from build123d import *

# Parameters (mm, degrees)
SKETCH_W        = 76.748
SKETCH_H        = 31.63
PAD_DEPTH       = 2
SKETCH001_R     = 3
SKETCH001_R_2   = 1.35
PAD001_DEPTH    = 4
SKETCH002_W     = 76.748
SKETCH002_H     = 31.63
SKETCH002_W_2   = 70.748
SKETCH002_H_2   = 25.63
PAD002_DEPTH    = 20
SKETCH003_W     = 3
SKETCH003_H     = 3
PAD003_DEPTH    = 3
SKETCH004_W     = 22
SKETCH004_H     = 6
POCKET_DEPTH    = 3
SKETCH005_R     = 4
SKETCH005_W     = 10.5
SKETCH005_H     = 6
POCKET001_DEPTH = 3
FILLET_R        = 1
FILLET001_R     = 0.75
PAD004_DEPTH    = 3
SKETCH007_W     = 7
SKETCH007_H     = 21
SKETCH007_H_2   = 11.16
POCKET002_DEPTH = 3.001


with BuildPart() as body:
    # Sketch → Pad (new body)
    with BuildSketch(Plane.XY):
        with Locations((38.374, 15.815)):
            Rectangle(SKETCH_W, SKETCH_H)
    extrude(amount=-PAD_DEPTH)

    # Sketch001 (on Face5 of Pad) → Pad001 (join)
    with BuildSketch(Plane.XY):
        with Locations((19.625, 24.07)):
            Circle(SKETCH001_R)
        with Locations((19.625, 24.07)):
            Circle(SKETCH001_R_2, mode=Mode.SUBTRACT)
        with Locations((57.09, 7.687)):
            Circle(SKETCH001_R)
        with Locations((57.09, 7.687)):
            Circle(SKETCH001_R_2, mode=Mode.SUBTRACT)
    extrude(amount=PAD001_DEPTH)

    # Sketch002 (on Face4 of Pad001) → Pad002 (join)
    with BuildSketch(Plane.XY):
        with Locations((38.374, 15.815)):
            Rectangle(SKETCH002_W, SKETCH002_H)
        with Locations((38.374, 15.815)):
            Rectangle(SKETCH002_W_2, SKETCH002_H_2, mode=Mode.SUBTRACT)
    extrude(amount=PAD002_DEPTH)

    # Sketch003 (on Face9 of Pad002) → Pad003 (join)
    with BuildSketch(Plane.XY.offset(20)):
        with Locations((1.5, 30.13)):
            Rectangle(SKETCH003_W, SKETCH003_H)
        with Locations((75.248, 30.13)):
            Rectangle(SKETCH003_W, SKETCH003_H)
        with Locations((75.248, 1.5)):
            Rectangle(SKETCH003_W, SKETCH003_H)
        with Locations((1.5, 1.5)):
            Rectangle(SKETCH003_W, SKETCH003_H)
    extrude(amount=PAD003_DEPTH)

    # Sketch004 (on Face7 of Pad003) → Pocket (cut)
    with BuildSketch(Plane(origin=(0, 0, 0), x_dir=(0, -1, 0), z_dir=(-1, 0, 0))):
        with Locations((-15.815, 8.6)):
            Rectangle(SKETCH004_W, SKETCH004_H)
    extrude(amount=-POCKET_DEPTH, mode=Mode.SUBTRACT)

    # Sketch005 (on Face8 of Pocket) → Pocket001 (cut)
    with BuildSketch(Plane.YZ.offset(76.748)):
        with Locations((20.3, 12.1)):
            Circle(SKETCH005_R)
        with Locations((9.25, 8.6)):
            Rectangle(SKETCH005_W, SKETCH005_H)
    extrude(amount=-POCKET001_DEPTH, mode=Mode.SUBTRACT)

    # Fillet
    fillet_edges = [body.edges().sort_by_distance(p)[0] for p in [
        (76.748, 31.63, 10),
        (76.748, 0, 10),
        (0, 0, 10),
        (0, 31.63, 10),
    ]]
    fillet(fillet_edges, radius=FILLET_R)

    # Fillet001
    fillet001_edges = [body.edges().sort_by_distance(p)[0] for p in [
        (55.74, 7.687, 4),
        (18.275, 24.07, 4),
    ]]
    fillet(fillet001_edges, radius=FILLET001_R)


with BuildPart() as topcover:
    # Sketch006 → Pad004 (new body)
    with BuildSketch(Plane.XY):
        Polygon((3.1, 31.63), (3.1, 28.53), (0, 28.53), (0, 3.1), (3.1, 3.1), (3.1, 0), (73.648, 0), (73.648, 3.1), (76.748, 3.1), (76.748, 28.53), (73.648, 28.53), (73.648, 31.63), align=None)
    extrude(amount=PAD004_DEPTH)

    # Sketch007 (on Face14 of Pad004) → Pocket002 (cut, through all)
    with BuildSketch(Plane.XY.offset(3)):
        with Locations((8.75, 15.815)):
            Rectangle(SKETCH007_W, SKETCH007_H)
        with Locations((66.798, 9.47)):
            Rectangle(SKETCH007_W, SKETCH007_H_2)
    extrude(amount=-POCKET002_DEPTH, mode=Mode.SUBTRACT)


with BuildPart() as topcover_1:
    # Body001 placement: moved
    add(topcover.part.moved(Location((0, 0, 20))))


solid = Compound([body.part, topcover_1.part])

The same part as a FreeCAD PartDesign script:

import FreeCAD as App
import Part
import Sketcher

V = App.Vector
Q = App.Units.Quantity


def edges_at(feature, points):
    """Names of the edges that pass closest to the given points."""
    edges = feature.Shape.Edges
    near = lambda p: min(range(len(edges)), key=lambda i: edges[i].distToShape(Part.Vertex(*p))[0])
    return sorted({f"Edge{near(p) + 1}" for p in points})

doc = App.newDocument("Part")
body = doc.addObject("PartDesign::Body", "Body")

sketch1 = doc.addObject("Sketcher::SketchObject", "Sketch")
body.addObject(sketch1)
sketch1.AttachmentSupport = (doc.XY_Plane, [""])
sketch1.MapMode = "FlatFace"
sketch1.addGeometry(Part.LineSegment(V(0, 32, 0), V(0, 0, 0)), False)
sketch1.addGeometry(Part.LineSegment(V(0, 0, 0), V(77, 0, 0)), False)
sketch1.addGeometry(Part.LineSegment(V(77, 0, 0), V(77, 32, 0)), False)
sketch1.addGeometry(Part.LineSegment(V(77, 32, 0), V(0, 32, 0)), False)
sketch1.addConstraint(Sketcher.Constraint("Coincident", 0, 2, 1, 1))
sketch1.addConstraint(Sketcher.Constraint("Coincident", 1, 2, 2, 1))
sketch1.addConstraint(Sketcher.Constraint("Coincident", 2, 2, 3, 1))
sketch1.addConstraint(Sketcher.Constraint("Coincident", 3, 2, 0, 1))
sketch1.addConstraint(Sketcher.Constraint("Vertical", 0))
sketch1.addConstraint(Sketcher.Constraint("Horizontal", 1))
sketch1.addConstraint(Sketcher.Constraint("Vertical", 2))
sketch1.addConstraint(Sketcher.Constraint("Horizontal", 3))
sketch1.addConstraint(Sketcher.Constraint("Coincident", 0, 2, -1, 1))
sketch1.addConstraint(Sketcher.Constraint("DistanceY", 0, 2, 0, 1, Q("31.63 mm")))
sketch1.addConstraint(Sketcher.Constraint("DistanceX", 1, 1, 1, 2, Q("76.748 mm")))
pad1 = doc.addObject("PartDesign::Pad", "Pad")
body.addObject(pad1)
pad1.Profile = sketch1
pad1.Length = 2
pad1.Reversed = True

sketch2 = doc.addObject("Sketcher::SketchObject", "Sketch001")
body.addObject(sketch2)
sketch2.AttachmentSupport = (doc.XY_Plane, [""])
sketch2.MapMode = "FlatFace"
sketch2.addGeometry(Part.Circle(V(19.6, 24.1, 0), V(0, 0, 1), 3), False)
sketch2.addGeometry(Part.Circle(V(19.6, 24.1, 0), V(0, 0, 1), 1.4), False)
sketch2.addGeometry(Part.Circle(V(57.1, 7.7, 0), V(0, 0, 1), 3), False)
sketch2.addGeometry(Part.Circle(V(57.1, 7.7, 0), V(0, 0, 1), 1.4), False)
sketch2.addConstraint(Sketcher.Constraint("Coincident", 1, 3, 0, 3))
sketch2.addConstraint(Sketcher.Constraint("Coincident", 3, 3, 2, 3))
sketch2.addConstraint(Sketcher.Constraint("Equal", 0, 2))
sketch2.addConstraint(Sketcher.Constraint("Equal", 1, 3))
sketch2.addConstraint(Sketcher.Constraint("Diameter", 0, Q("6 mm")))
sketch2.addConstraint(Sketcher.Constraint("Diameter", 1, Q("2.7 mm")))
sketch2.addConstraint(Sketcher.Constraint("DistanceY", -1, 1, 0, 3, Q("24.07 mm")))
sketch2.addConstraint(Sketcher.Constraint("DistanceX", -1, 1, 2, 3, Q("57.09 mm")))
sketch2.addConstraint(Sketcher.Constraint("DistanceX", -1, 1, 0, 3, Q("19.625 mm")))
sketch2.addConstraint(Sketcher.Constraint("DistanceY", -1, 1, 2, 3, Q("7.687 mm")))
pad2 = doc.addObject("PartDesign::Pad", "Pad001")
body.addObject(pad2)
pad2.Profile = sketch2
pad2.Length = 4

sketch3 = doc.addObject("Sketcher::SketchObject", "Sketch002")
body.addObject(sketch3)
sketch3.AttachmentSupport = (doc.XY_Plane, [""])
sketch3.MapMode = "FlatFace"
sketch3.addGeometry(Part.LineSegment(V(0, 32, 0), V(0, 0, 0)), False)
sketch3.addGeometry(Part.LineSegment(V(0, 0, 0), V(77, 0, 0)), False)
sketch3.addGeometry(Part.LineSegment(V(77, 0, 0), V(77, 32, 0)), False)
sketch3.addGeometry(Part.LineSegment(V(77, 32, 0), V(0, 32, 0)), False)
sketch3.addGeometry(Part.LineSegment(V(74, 3, 0), V(3, 3, 0)), False)
sketch3.addGeometry(Part.LineSegment(V(3, 3, 0), V(3, 29, 0)), False)
sketch3.addGeometry(Part.LineSegment(V(3, 29, 0), V(74, 29, 0)), False)
sketch3.addGeometry(Part.LineSegment(V(74, 29, 0), V(74, 3, 0)), False)
sketch3.addConstraint(Sketcher.Constraint("Coincident", 0, 2, 1, 1))
sketch3.addConstraint(Sketcher.Constraint("Coincident", 1, 2, 2, 1))
sketch3.addConstraint(Sketcher.Constraint("Coincident", 2, 2, 3, 1))
sketch3.addConstraint(Sketcher.Constraint("Coincident", 3, 2, 0, 1))
sketch3.addConstraint(Sketcher.Constraint("Coincident", 4, 2, 5, 1))
sketch3.addConstraint(Sketcher.Constraint("Coincident", 5, 2, 6, 1))
sketch3.addConstraint(Sketcher.Constraint("Coincident", 6, 2, 7, 1))
sketch3.addConstraint(Sketcher.Constraint("Coincident", 7, 2, 4, 1))
sketch3.addConstraint(Sketcher.Constraint("Vertical", 0))
sketch3.addConstraint(Sketcher.Constraint("Horizontal", 1))
sketch3.addConstraint(Sketcher.Constraint("Vertical", 2))
sketch3.addConstraint(Sketcher.Constraint("Horizontal", 3))
sketch3.addConstraint(Sketcher.Constraint("Horizontal", 4))
sketch3.addConstraint(Sketcher.Constraint("Vertical", 5))
sketch3.addConstraint(Sketcher.Constraint("Horizontal", 6))
sketch3.addConstraint(Sketcher.Constraint("Vertical", 7))
sketch3.addConstraint(Sketcher.Constraint("Coincident", 0, 2, -1, 1))
sketch3.addConstraint(Sketcher.Constraint("DistanceX", -1, 1, 4, 2, Q("3 mm")))
sketch3.addConstraint(Sketcher.Constraint("DistanceY", -1, 1, 4, 2, Q("3 mm")))
sketch3.addConstraint(Sketcher.Constraint("DistanceY", 5, 2, 3, 2, Q("3 mm")))
sketch3.addConstraint(Sketcher.Constraint("DistanceX", 6, 2, 2, 2, Q("3 mm")))
sketch3.addConstraint(Sketcher.Constraint("DistanceY", 0, 2, 0, 1, Q("31.63 mm")))
sketch3.addConstraint(Sketcher.Constraint("DistanceX", 1, 1, 1, 2, Q("76.748 mm")))
pad3 = doc.addObject("PartDesign::Pad", "Pad002")
body.addObject(pad3)
pad3.Profile = sketch3
pad3.Length = 20

sketch4 = doc.addObject("Sketcher::SketchObject", "Sketch003")
body.addObject(sketch4)
sketch4.AttachmentSupport = (doc.XY_Plane, [""])
sketch4.MapMode = "FlatFace"
sketch4.AttachmentOffset = App.Placement(V(0, 0, 20), App.Rotation())
sketch4.addGeometry(Part.LineSegment(V(0, 31.6, 0), V(0, 28.6, 0)), False)
sketch4.addGeometry(Part.LineSegment(V(0, 28.6, 0), V(3, 28.6, 0)), False)
sketch4.addGeometry(Part.LineSegment(V(3, 28.6, 0), V(3, 31.6, 0)), False)
sketch4.addGeometry(Part.LineSegment(V(3, 31.6, 0), V(0, 31.6, 0)), False)
sketch4.addGeometry(Part.LineSegment(V(73.7, 31.6, 0), V(73.7, 28.6, 0)), False)
sketch4.addGeometry(Part.LineSegment(V(73.7, 28.6, 0), V(76.7, 28.6, 0)), False)
sketch4.addGeometry(Part.LineSegment(V(76.7, 28.6, 0), V(76.7, 31.6, 0)), False)
sketch4.addGeometry(Part.LineSegment(V(76.7, 31.6, 0), V(73.7, 31.6, 0)), False)
sketch4.addGeometry(Part.LineSegment(V(73.7, 3, 0), V(73.7, 0, 0)), False)
sketch4.addGeometry(Part.LineSegment(V(73.7, 0, 0), V(76.7, 0, 0)), False)
sketch4.addGeometry(Part.LineSegment(V(76.7, 0, 0), V(76.7, 3, 0)), False)
sketch4.addGeometry(Part.LineSegment(V(76.7, 3, 0), V(73.7, 3, 0)), False)
sketch4.addGeometry(Part.LineSegment(V(0, 3, 0), V(0, 0, 0)), False)
sketch4.addGeometry(Part.LineSegment(V(0, 0, 0), V(3, 0, 0)), False)
sketch4.addGeometry(Part.LineSegment(V(3, 0, 0), V(3, 3, 0)), False)
sketch4.addGeometry(Part.LineSegment(V(3, 3, 0), V(0, 3, 0)), False)
sketch4.addConstraint(Sketcher.Constraint("Coincident", 0, 2, 1, 1))
sketch4.addConstraint(Sketcher.Constraint("Coincident", 1, 2, 2, 1))
sketch4.addConstraint(Sketcher.Constraint("Coincident", 2, 2, 3, 1))
sketch4.addConstraint(Sketcher.Constraint("Coincident", 3, 2, 0, 1))
sketch4.addConstraint(Sketcher.Constraint("Coincident", 4, 2, 5, 1))
sketch4.addConstraint(Sketcher.Constraint("Coincident", 5, 2, 6, 1))
sketch4.addConstraint(Sketcher.Constraint("Coincident", 6, 2, 7, 1))
sketch4.addConstraint(Sketcher.Constraint("Coincident", 7, 2, 4, 1))
sketch4.addConstraint(Sketcher.Constraint("Coincident", 8, 2, 9, 1))
sketch4.addConstraint(Sketcher.Constraint("Coincident", 9, 2, 10, 1))
sketch4.addConstraint(Sketcher.Constraint("Coincident", 10, 2, 11, 1))
sketch4.addConstraint(Sketcher.Constraint("Coincident", 11, 2, 8, 1))
sketch4.addConstraint(Sketcher.Constraint("Coincident", 12, 2, 13, 1))
sketch4.addConstraint(Sketcher.Constraint("Coincident", 13, 2, 14, 1))
sketch4.addConstraint(Sketcher.Constraint("Coincident", 14, 2, 15, 1))
sketch4.addConstraint(Sketcher.Constraint("Coincident", 15, 2, 12, 1))
sketch4.addConstraint(Sketcher.Constraint("Vertical", 0))
sketch4.addConstraint(Sketcher.Constraint("Horizontal", 1))
sketch4.addConstraint(Sketcher.Constraint("Vertical", 2))
sketch4.addConstraint(Sketcher.Constraint("Horizontal", 3))
sketch4.addConstraint(Sketcher.Constraint("Vertical", 4))
sketch4.addConstraint(Sketcher.Constraint("Horizontal", 5))
sketch4.addConstraint(Sketcher.Constraint("Vertical", 6))
sketch4.addConstraint(Sketcher.Constraint("Horizontal", 7))
sketch4.addConstraint(Sketcher.Constraint("Vertical", 8))
sketch4.addConstraint(Sketcher.Constraint("Horizontal", 9))
sketch4.addConstraint(Sketcher.Constraint("Vertical", 10))
sketch4.addConstraint(Sketcher.Constraint("Horizontal", 11))
sketch4.addConstraint(Sketcher.Constraint("Vertical", 12))
sketch4.addConstraint(Sketcher.Constraint("Horizontal", 13))
sketch4.addConstraint(Sketcher.Constraint("Vertical", 14))
sketch4.addConstraint(Sketcher.Constraint("Horizontal", 15))
sketch4.addConstraint(Sketcher.Constraint("Coincident", 12, 2, -1, 1))
sketch4.addConstraint(Sketcher.Constraint("PointOnObject", 0, 2, -2))
sketch4.addConstraint(Sketcher.Constraint("PointOnObject", 8, 2, -1))
sketch4.addConstraint(Sketcher.Constraint("Horizontal", 1, 2, 4, 2))
sketch4.addConstraint(Sketcher.Constraint("Horizontal", 3, 2, 6, 2))
sketch4.addConstraint(Sketcher.Constraint("Horizontal", 11, 2, 14, 2))
sketch4.addConstraint(Sketcher.Constraint("Vertical", 7, 2, 8, 2))
sketch4.addConstraint(Sketcher.Constraint("Vertical", 6, 2, 9, 2))
sketch4.addConstraint(Sketcher.Constraint("Vertical", 2, 2, 13, 2))
sketch4.addConstraint(Sketcher.Constraint("Equal", 3, 5))
sketch4.addConstraint(Sketcher.Constraint("Equal", 15, 0))
sketch4.addConstraint(Sketcher.Constraint("Equal", 6, 8))
sketch4.addConstraint(Sketcher.Constraint("DistanceX", 1, 1, 1, 2, Q("3 mm")))
sketch4.addConstraint(Sketcher.Constraint("DistanceY", -1, 1, 0, 2, Q("28.63 mm")))
sketch4.addConstraint(Sketcher.Constraint("DistanceX", -1, 1, 4, 2, Q("73.748 mm")))
pad4 = doc.addObject("PartDesign::Pad", "Pad003")
body.addObject(pad4)
pad4.Profile = sketch4
pad4.Length = 3

sketch5 = doc.addObject("Sketcher::SketchObject", "Sketch004")
body.addObject(sketch5)
sketch5.AttachmentSupport = (doc.YZ_Plane, [""])
sketch5.MapMode = "FlatFace"
sketch5.addGeometry(Part.LineSegment(V(27, 12, 0), V(27, 6, 0)), False)
sketch5.addGeometry(Part.LineSegment(V(27, 6, 0), V(5, 6, 0)), False)
sketch5.addGeometry(Part.LineSegment(V(5, 6, 0), V(5, 12, 0)), False)
sketch5.addGeometry(Part.LineSegment(V(5, 12, 0), V(27, 12, 0)), False)
sketch5.addConstraint(Sketcher.Constraint("Coincident", 0, 2, 1, 1))
sketch5.addConstraint(Sketcher.Constraint("Coincident", 1, 2, 2, 1))
sketch5.addConstraint(Sketcher.Constraint("Coincident", 2, 2, 3, 1))
sketch5.addConstraint(Sketcher.Constraint("Coincident", 3, 2, 0, 1))
sketch5.addConstraint(Sketcher.Constraint("Vertical", 0))
sketch5.addConstraint(Sketcher.Constraint("Horizontal", 1))
sketch5.addConstraint(Sketcher.Constraint("Vertical", 2))
sketch5.addConstraint(Sketcher.Constraint("Horizontal", 3))
sketch5.addConstraint(Sketcher.Constraint("DistanceX", 1, 2, 1, 1, Q("22 mm")))
sketch5.addConstraint(Sketcher.Constraint("DistanceY", 0, 2, 0, 1, Q("6 mm")))
sketch5.addConstraint(Sketcher.Constraint("DistanceY", -1, 1, 0, 2, Q("5.6 mm")))
sketch5.addConstraint(Sketcher.Constraint("DistanceX", -1, 1, 0, 2, Q("26.815 mm")))
pocket1 = doc.addObject("PartDesign::Pocket", "Pocket")
body.addObject(pocket1)
pocket1.Profile = sketch5
pocket1.Length = 3
pocket1.Reversed = True

sketch6 = doc.addObject("Sketcher::SketchObject", "Sketch005")
body.addObject(sketch6)
sketch6.AttachmentSupport = (doc.YZ_Plane, [""])
sketch6.MapMode = "FlatFace"
sketch6.AttachmentOffset = App.Placement(V(0, 0, 76.748), App.Rotation())
sketch6.addGeometry(Part.Circle(V(20.3, 12.1, 0), V(0, 0, 1), 4), False)
sketch6.addGeometry(Part.LineSegment(V(4, 11.6, 0), V(4, 5.6, 0)), False)
sketch6.addGeometry(Part.LineSegment(V(4, 5.6, 0), V(14.5, 5.6, 0)), False)
sketch6.addGeometry(Part.LineSegment(V(14.5, 5.6, 0), V(14.5, 11.6, 0)), False)
sketch6.addGeometry(Part.LineSegment(V(14.5, 11.6, 0), V(4, 11.6, 0)), False)
sketch6.addConstraint(Sketcher.Constraint("Coincident", 1, 2, 2, 1))
sketch6.addConstraint(Sketcher.Constraint("Coincident", 2, 2, 3, 1))
sketch6.addConstraint(Sketcher.Constraint("Coincident", 3, 2, 4, 1))
sketch6.addConstraint(Sketcher.Constraint("Coincident", 4, 2, 1, 1))
sketch6.addConstraint(Sketcher.Constraint("Vertical", 1))
sketch6.addConstraint(Sketcher.Constraint("Horizontal", 2))
sketch6.addConstraint(Sketcher.Constraint("Vertical", 3))
sketch6.addConstraint(Sketcher.Constraint("Horizontal", 4))
sketch6.addConstraint(Sketcher.Constraint("Diameter", 0, Q("8 mm")))
sketch6.addConstraint(Sketcher.Constraint("DistanceY", 1, 2, 1, 1, Q("6 mm")))
sketch6.addConstraint(Sketcher.Constraint("DistanceX", 2, 1, 2, 2, Q("10.5 mm")))
sketch6.addConstraint(Sketcher.Constraint("DistanceX", -1, 1, 1, 2, Q("4 mm")))
sketch6.addConstraint(Sketcher.Constraint("DistanceX", -1, 1, 0, 3, Q("20.3 mm")))
sketch6.addConstraint(Sketcher.Constraint("DistanceY", -1, 1, 0, 3, Q("12.1 mm")))
sketch6.addConstraint(Sketcher.Constraint("DistanceY", -1, 1, 1, 2, Q("5.6 mm")))
pocket2 = doc.addObject("PartDesign::Pocket", "Pocket001")
body.addObject(pocket2)
pocket2.Profile = sketch6
pocket2.Length = 3
doc.recompute()

fillet = doc.addObject("PartDesign::Fillet", "Fillet")
body.addObject(fillet)
fillet.Base = (pocket2, edges_at(pocket2, [
    (76.748, 31.63, 10.5),
    (76.748, 0, 10.5),
    (0, 0, 10.5),
    (0, 31.63, 10.5),
]))
fillet.Radius = 1
doc.recompute()

fillet2 = doc.addObject("PartDesign::Fillet", "Fillet001")
body.addObject(fillet2)
fillet2.Base = (fillet, edges_at(fillet, [(55.74, 7.687, 4), (18.275, 24.07, 4)]))
fillet2.Radius = 0.75
body2 = doc.addObject("PartDesign::Body", "Body001")

sketch7 = doc.addObject("Sketcher::SketchObject", "Sketch006")
body2.addObject(sketch7)
sketch7.AttachmentSupport = (doc.getObject("XY_Plane001"), [""])
sketch7.MapMode = "FlatFace"
sketch7.addGeometry(Part.LineSegment(V(3.1, 31.6, 0), V(3.1, 28.5, 0)), False)
sketch7.addGeometry(Part.LineSegment(V(3.1, 28.5, 0), V(0, 28.5, 0)), False)
sketch7.addGeometry(Part.LineSegment(V(0, 28.5, 0), V(0, 3.1, 0)), False)
sketch7.addGeometry(Part.LineSegment(V(0, 3.1, 0), V(3.1, 3.1, 0)), False)
sketch7.addGeometry(Part.LineSegment(V(3.1, 3.1, 0), V(3.1, 0, 0)), False)
sketch7.addGeometry(Part.LineSegment(V(3.1, 0, 0), V(73.6, 0, 0)), False)
sketch7.addGeometry(Part.LineSegment(V(73.6, 0, 0), V(73.6, 3.1, 0)), False)
sketch7.addGeometry(Part.LineSegment(V(73.6, 3.1, 0), V(76.7, 3.1, 0)), False)
sketch7.addGeometry(Part.LineSegment(V(76.7, 3.1, 0), V(76.7, 28.5, 0)), False)
sketch7.addGeometry(Part.LineSegment(V(76.7, 28.5, 0), V(73.6, 28.5, 0)), False)
sketch7.addGeometry(Part.LineSegment(V(73.6, 28.5, 0), V(73.6, 31.6, 0)), False)
sketch7.addGeometry(Part.LineSegment(V(73.6, 31.6, 0), V(3.1, 31.6, 0)), False)
sketch7.addConstraint(Sketcher.Constraint("Coincident", 0, 2, 1, 1))
sketch7.addConstraint(Sketcher.Constraint("Coincident", 1, 2, 2, 1))
sketch7.addConstraint(Sketcher.Constraint("Coincident", 2, 2, 3, 1))
sketch7.addConstraint(Sketcher.Constraint("Coincident", 3, 2, 4, 1))
sketch7.addConstraint(Sketcher.Constraint("Coincident", 4, 2, 5, 1))
sketch7.addConstraint(Sketcher.Constraint("Coincident", 5, 2, 6, 1))
sketch7.addConstraint(Sketcher.Constraint("Coincident", 6, 2, 7, 1))
sketch7.addConstraint(Sketcher.Constraint("Coincident", 7, 2, 8, 1))
sketch7.addConstraint(Sketcher.Constraint("Coincident", 8, 2, 9, 1))
sketch7.addConstraint(Sketcher.Constraint("Coincident", 9, 2, 10, 1))
sketch7.addConstraint(Sketcher.Constraint("Coincident", 10, 2, 11, 1))
sketch7.addConstraint(Sketcher.Constraint("Coincident", 11, 2, 0, 1))
sketch7.addConstraint(Sketcher.Constraint("Vertical", 0))
sketch7.addConstraint(Sketcher.Constraint("Horizontal", 1))
sketch7.addConstraint(Sketcher.Constraint("Vertical", 2))
sketch7.addConstraint(Sketcher.Constraint("Horizontal", 3))
sketch7.addConstraint(Sketcher.Constraint("Vertical", 4))
sketch7.addConstraint(Sketcher.Constraint("Horizontal", 5))
sketch7.addConstraint(Sketcher.Constraint("Vertical", 6))
sketch7.addConstraint(Sketcher.Constraint("Horizontal", 7))
sketch7.addConstraint(Sketcher.Constraint("Vertical", 8))
sketch7.addConstraint(Sketcher.Constraint("Horizontal", 9))
sketch7.addConstraint(Sketcher.Constraint("Vertical", 10))
sketch7.addConstraint(Sketcher.Constraint("Horizontal", 11))
sketch7.addConstraint(Sketcher.Constraint("PointOnObject", 1, 2, -2))
sketch7.addConstraint(Sketcher.Constraint("PointOnObject", 4, 2, -1))
sketch7.addConstraint(Sketcher.Constraint("Horizontal", 3, 2, 6, 2))
sketch7.addConstraint(Sketcher.Constraint("Horizontal", 1, 2, 8, 2))
sketch7.addConstraint(Sketcher.Constraint("Vertical", 0, 2, 3, 2))
sketch7.addConstraint(Sketcher.Constraint("Vertical", 6, 2, 9, 2))
sketch7.addConstraint(Sketcher.Constraint("Equal", 3, 7))
sketch7.addConstraint(Sketcher.Constraint("Equal", 9, 0))
sketch7.addConstraint(Sketcher.Constraint("Equal", 0, 4))
sketch7.addConstraint(Sketcher.Constraint("DistanceX", 1, 2, 1, 1, Q("3.1 mm")))
sketch7.addConstraint(Sketcher.Constraint("DistanceY", 2, 2, 2, 1, Q("25.43 mm")))
sketch7.addConstraint(Sketcher.Constraint("DistanceX", 5, 1, 5, 2, Q("70.548 mm")))
pad5 = doc.addObject("PartDesign::Pad", "Pad004")
body2.addObject(pad5)
pad5.Profile = sketch7
pad5.Length = 3

sketch8 = doc.addObject("Sketcher::SketchObject", "Sketch007")
body2.addObject(sketch8)
sketch8.AttachmentSupport = (doc.getObject("XY_Plane001"), [""])
sketch8.MapMode = "FlatFace"
sketch8.AttachmentOffset = App.Placement(V(0, 0, 3), App.Rotation())
sketch8.addGeometry(Part.LineSegment(V(5, 26, 0), V(5, 5, 0)), False)
sketch8.addGeometry(Part.LineSegment(V(5, 5, 0), V(12, 5, 0)), False)
sketch8.addGeometry(Part.LineSegment(V(12, 5, 0), V(12, 26, 0)), False)
sketch8.addGeometry(Part.LineSegment(V(12, 26, 0), V(5, 26, 0)), False)
sketch8.addGeometry(Part.LineSegment(V(63, 15, 0), V(63, 4, 0)), False)
sketch8.addGeometry(Part.LineSegment(V(63, 4, 0), V(70, 4, 0)), False)
sketch8.addGeometry(Part.LineSegment(V(70, 4, 0), V(70, 15, 0)), False)
sketch8.addGeometry(Part.LineSegment(V(70, 15, 0), V(63, 15, 0)), False)
sketch8.addConstraint(Sketcher.Constraint("Coincident", 0, 2, 1, 1))
sketch8.addConstraint(Sketcher.Constraint("Coincident", 1, 2, 2, 1))
sketch8.addConstraint(Sketcher.Constraint("Coincident", 2, 2, 3, 1))
sketch8.addConstraint(Sketcher.Constraint("Coincident", 3, 2, 0, 1))
sketch8.addConstraint(Sketcher.Constraint("Coincident", 4, 2, 5, 1))
sketch8.addConstraint(Sketcher.Constraint("Coincident", 5, 2, 6, 1))
sketch8.addConstraint(Sketcher.Constraint("Coincident", 6, 2, 7, 1))
sketch8.addConstraint(Sketcher.Constraint("Coincident", 7, 2, 4, 1))
sketch8.addConstraint(Sketcher.Constraint("Vertical", 0))
sketch8.addConstraint(Sketcher.Constraint("Horizontal", 1))
sketch8.addConstraint(Sketcher.Constraint("Vertical", 2))
sketch8.addConstraint(Sketcher.Constraint("Horizontal", 3))
sketch8.addConstraint(Sketcher.Constraint("Vertical", 4))
sketch8.addConstraint(Sketcher.Constraint("Horizontal", 5))
sketch8.addConstraint(Sketcher.Constraint("Vertical", 6))
sketch8.addConstraint(Sketcher.Constraint("Horizontal", 7))
sketch8.addConstraint(Sketcher.Constraint("Equal", 3, 5))
sketch8.addConstraint(Sketcher.Constraint("DistanceX", 1, 1, 1, 2, Q("7 mm")))
sketch8.addConstraint(Sketcher.Constraint("DistanceY", 0, 2, 0, 1, Q("21 mm")))
sketch8.addConstraint(Sketcher.Constraint("DistanceY", 4, 2, 4, 1, Q("11.16 mm")))
sketch8.addConstraint(Sketcher.Constraint("DistanceX", -1, 1, 0, 2, Q("5.25 mm")))
sketch8.addConstraint(Sketcher.Constraint("DistanceY", -1, 1, 4, 2, Q("3.89 mm")))
sketch8.addConstraint(Sketcher.Constraint("DistanceY", -1, 1, 0, 2, Q("5.315 mm")))
sketch8.addConstraint(Sketcher.Constraint("DistanceX", -1, 1, 4, 2, Q("63.298 mm")))
pocket3 = doc.addObject("PartDesign::Pocket", "Pocket002")
body2.addObject(pocket3)
pocket3.Profile = sketch8
pocket3.Type = "ThroughAll"
body3 = doc.addObject("PartDesign::Body", "Body002")
doc.recompute()

body2.Placement = App.Placement(V(0, 0, 20), App.Rotation(V(0, 0, 1), 0))
boolean = doc.addObject("PartDesign::Boolean", "Boolean")
body3.addObject(boolean)
boolean.Type = "Fuse"
boolean.addObjects([body2])

doc.recompute()
